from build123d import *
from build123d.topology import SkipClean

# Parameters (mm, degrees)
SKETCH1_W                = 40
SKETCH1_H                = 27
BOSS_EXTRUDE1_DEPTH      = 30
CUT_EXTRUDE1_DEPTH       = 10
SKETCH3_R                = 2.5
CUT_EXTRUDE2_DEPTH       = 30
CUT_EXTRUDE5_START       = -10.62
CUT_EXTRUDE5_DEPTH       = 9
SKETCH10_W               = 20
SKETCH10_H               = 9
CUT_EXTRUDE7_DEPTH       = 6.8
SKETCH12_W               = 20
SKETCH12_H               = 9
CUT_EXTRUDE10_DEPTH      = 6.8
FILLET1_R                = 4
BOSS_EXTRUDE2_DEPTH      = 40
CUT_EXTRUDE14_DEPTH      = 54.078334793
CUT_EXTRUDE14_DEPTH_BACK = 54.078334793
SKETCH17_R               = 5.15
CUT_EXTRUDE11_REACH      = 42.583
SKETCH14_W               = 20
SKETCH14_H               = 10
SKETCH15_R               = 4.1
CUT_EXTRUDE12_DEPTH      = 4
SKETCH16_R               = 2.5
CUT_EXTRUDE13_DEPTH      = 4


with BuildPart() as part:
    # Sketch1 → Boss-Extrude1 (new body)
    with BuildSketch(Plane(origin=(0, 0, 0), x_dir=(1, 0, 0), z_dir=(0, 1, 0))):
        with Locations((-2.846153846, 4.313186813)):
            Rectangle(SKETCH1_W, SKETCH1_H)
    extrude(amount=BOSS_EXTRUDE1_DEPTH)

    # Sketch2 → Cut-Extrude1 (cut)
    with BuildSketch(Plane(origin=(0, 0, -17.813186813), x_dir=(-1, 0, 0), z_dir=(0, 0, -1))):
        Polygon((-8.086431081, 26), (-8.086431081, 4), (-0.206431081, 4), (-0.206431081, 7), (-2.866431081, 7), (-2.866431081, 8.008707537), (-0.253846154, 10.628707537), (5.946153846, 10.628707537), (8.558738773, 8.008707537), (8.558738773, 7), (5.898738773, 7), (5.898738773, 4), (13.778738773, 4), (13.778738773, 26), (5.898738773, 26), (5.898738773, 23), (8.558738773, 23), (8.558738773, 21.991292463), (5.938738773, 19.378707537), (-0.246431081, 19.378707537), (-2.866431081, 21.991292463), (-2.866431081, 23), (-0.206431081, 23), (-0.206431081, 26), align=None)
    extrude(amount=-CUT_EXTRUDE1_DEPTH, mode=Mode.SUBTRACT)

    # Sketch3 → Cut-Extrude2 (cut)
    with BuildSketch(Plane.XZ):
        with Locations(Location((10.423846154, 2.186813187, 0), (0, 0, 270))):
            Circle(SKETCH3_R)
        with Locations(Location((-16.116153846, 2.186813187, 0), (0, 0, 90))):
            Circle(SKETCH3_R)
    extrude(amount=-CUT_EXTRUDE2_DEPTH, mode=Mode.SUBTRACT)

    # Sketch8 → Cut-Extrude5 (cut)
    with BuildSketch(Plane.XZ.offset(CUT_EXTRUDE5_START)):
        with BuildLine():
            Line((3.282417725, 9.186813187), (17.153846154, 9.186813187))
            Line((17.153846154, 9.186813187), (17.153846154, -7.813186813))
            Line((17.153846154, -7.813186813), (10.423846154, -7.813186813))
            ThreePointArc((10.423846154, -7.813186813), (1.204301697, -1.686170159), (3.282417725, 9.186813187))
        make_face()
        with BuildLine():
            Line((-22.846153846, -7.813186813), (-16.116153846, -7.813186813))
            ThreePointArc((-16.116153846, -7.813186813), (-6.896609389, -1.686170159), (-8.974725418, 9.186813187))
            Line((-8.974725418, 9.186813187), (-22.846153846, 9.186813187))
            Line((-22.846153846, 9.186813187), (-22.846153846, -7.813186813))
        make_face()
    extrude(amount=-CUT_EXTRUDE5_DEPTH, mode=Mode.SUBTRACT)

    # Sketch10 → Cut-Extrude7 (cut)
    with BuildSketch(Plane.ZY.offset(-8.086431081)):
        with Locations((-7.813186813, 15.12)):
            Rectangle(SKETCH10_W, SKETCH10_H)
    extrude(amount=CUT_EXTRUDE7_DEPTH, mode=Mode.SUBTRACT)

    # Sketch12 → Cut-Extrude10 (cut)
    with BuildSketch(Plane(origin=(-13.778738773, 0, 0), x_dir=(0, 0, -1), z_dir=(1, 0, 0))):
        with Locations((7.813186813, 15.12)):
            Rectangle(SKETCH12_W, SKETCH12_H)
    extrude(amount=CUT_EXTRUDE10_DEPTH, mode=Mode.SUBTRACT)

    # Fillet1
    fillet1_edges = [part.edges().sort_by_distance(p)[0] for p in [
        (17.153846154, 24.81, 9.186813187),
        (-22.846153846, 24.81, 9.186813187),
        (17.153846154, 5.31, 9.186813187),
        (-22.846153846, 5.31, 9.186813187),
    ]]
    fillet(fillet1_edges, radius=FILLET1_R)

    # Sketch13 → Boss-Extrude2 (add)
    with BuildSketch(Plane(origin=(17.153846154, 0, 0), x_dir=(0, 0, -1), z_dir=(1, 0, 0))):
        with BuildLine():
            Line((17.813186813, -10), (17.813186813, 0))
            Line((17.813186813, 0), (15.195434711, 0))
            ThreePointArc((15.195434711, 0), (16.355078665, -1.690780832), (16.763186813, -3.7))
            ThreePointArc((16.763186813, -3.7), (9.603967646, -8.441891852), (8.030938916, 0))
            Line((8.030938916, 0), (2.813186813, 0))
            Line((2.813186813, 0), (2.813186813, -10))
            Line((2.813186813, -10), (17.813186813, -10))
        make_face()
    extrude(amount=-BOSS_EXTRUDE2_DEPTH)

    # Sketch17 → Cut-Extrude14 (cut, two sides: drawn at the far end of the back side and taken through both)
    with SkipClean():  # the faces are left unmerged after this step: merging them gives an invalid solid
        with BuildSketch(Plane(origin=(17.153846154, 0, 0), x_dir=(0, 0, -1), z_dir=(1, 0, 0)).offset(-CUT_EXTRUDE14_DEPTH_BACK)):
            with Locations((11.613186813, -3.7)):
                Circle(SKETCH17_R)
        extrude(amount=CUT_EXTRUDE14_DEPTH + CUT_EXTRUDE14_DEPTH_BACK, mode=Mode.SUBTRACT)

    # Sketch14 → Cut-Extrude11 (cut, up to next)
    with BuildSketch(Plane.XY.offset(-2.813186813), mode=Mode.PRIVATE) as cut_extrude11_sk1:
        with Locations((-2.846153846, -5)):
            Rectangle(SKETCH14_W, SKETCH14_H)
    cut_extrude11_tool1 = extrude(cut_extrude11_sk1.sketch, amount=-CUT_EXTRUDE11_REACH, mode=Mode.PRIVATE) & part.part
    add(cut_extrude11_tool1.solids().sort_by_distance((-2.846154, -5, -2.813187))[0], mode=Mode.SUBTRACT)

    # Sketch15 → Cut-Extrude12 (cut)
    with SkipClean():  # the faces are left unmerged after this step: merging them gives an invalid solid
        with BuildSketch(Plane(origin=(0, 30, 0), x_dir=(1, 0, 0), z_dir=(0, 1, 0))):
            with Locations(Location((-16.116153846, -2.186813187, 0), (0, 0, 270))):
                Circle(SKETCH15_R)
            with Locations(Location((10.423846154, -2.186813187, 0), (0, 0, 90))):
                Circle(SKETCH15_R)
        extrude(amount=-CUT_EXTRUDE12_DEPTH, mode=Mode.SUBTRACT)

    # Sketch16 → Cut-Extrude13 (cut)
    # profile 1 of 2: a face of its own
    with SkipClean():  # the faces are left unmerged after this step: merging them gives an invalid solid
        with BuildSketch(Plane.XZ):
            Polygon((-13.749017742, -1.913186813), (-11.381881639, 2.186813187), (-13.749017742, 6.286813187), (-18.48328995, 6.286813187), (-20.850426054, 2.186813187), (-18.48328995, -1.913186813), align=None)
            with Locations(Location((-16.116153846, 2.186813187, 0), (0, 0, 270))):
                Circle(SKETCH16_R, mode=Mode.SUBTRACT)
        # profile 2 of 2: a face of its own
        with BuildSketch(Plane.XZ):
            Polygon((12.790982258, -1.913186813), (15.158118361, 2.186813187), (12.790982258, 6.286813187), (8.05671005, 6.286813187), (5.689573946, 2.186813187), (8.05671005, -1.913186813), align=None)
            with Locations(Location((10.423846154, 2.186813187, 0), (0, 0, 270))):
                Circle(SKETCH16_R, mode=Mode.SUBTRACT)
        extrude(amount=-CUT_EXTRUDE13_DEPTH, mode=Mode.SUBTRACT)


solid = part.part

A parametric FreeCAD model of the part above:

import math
import FreeCAD as App
import Part
import Sketcher
from FreeCAD import Vector
Q = App.Units.Quantity


def edges_at(feature, points):
    """Names of the edges that pass closest to the given points."""
    edges = feature.Shape.Edges
    near = lambda p: min(range(len(edges)), key=lambda i: edges[i].distToShape(Part.Vertex(*p))[0])
    return sorted({f"Edge{near(p) + 1}" for p in points})

doc = App.newDocument("Part")
params = doc.addObject("Spreadsheet::Sheet", "Params")
for row, (alias, value) in enumerate([
    ("sketch1_width", "40 mm"),
    ("sketch1_height", "27 mm"),
    ("pad1_length", "30 mm"),
    ("sketch2_height", "22 mm"),
    ("sketch2_height2", "3 mm"),
    ("sketch2_width", "6.2 mm"),
    ("sketch2_length", "3.7 mm"),
    ("sketch2_width2", "7.88 mm"),
    ("pocket1_length", "10 mm"),
    ("sketch3_diameter", "5 mm"),
    ("pocket2_length", "30 mm"),
    ("sketch4_radius", "10 mm"),
    ("sketch4_height", "17 mm"),
    ("sketch4_width", "6.73 mm"),
    ("pocket3_length", "9 mm"),
    ("sketch5_width", "9 mm"),
    ("sketch5_height", "20 mm"),
    ("pocket4_length", "6.8 mm"),
    ("sketch6_width", "9 mm"),
    ("sketch6_height", "20 mm"),
    ("pocket5_length", "6.8 mm"),
    ("fillet_radius", "4 mm"),
    ("sketch7_width", "10 mm"),
    ("sketch7_height", "15 mm"),
    ("sketch7_radius", "5.15 mm"),
    ("pad2_length", "40 mm"),
    ("sketch8_diameter", "10.3 mm"),
    ("sketch9_width", "20 mm"),
    ("sketch9_height", "10 mm"),
    ("pocket7_length", "15 mm"),
    ("sketch10_diameter", "8.2 mm"),
    ("pocket8_length", "4 mm"),
    ("sketch11_diameter", "5 mm"),
    ("pocket9_length", "4 mm"),
], start=1):
    params.set(f"A{row}", alias)
    params.set(f"B{row}", "=" + value)
    params.setAlias(f"B{row}", alias)

body = doc.addObject("PartDesign::Body", "Body")

# Sketch on XZ plane
sketch1 = doc.addObject("Sketcher::SketchObject", "Sketch")
body.addObject(sketch1)
sketch1.AttachmentSupport = (doc.XZ_Plane, [""])
sketch1.MapMode = "FlatFace"
sketch1.addGeometry([
    Part.LineSegment(Vector(-22.846154, -17.813187, 0), Vector(-22.846154, 9.186813, 0)),
    Part.LineSegment(Vector(-22.846154, 9.186813, 0), Vector(17.153846, 9.186813, 0)),
    Part.LineSegment(Vector(17.153846, 9.186813, 0), Vector(17.153846, -17.813187, 0)),
    Part.LineSegment(Vector(17.153846, -17.813187, 0), Vector(-22.846154, -17.813187, 0)),
], False)
sketch1.addConstraint([
    Sketcher.Constraint("Coincident", 0, 2, 1, 1),
    Sketcher.Constraint("Coincident", 1, 2, 2, 1),
    Sketcher.Constraint("Coincident", 2, 2, 3, 1),
    Sketcher.Constraint("Coincident", 3, 2, 0, 1),
    Sketcher.Constraint("Vertical", 0),
    Sketcher.Constraint("Horizontal", 1),
    Sketcher.Constraint("Vertical", 2),
    Sketcher.Constraint("Horizontal", 3),
    Sketcher.Constraint("DistanceX", 1, 1, 1, 2, 40.0),
    Sketcher.Constraint("DistanceY", 0, 1, 0, 2, 27.0),
    Sketcher.Constraint("DistanceX", 0, 2, -1, 1, 22.846154),
    Sketcher.Constraint("DistanceY", -1, 1, 0, 2, 9.186813),
])
sketch1.setExpression("Constraints[8]", "Params.sketch1_width")
sketch1.setExpression("Constraints[9]", "Params.sketch1_height")
pad1 = doc.addObject("PartDesign::Pad", "Pad")
body.addObject(pad1)
pad1.Profile = sketch1
pad1.setExpression("Length", "Params.pad1_length")
pad1.Reversed = True

# Sketch on XY plane
sketch2 = doc.addObject("Sketcher::SketchObject", "Sketch001")
body.addObject(sketch2)
sketch2.AttachmentSupport = (doc.XY_Plane, [""])
sketch2.MapMode = "FlatFace"
sketch2.AttachmentOffset = App.Placement(Vector(0, 0, -17.813187), App.Rotation())
sketch2.addGeometry([
    Part.LineSegment(Vector(8.086431, 26, 0), Vector(8.086431, 4, 0)),  # 0
    Part.LineSegment(Vector(8.086431, 4, 0), Vector(0.206431, 4, 0)),  # 1
    Part.LineSegment(Vector(0.206431, 4, 0), Vector(0.206431, 7, 0)),  # 2
    Part.LineSegment(Vector(0.206431, 7, 0), Vector(2.866431, 7, 0)),  # 3
    Part.LineSegment(Vector(2.866431, 7, 0), Vector(2.866431, 8.008708, 0)),  # 4
    Part.LineSegment(Vector(2.866431, 8.008708, 0), Vector(0.253846, 10.628708, 0)),  # 5
    Part.LineSegment(Vector(0.253846, 10.628708, 0), Vector(-5.946154, 10.628708, 0)),  # 6
    Part.LineSegment(Vector(-5.946154, 10.628708, 0), Vector(-8.558739, 8.008708, 0)),  # 7
    Part.LineSegment(Vector(-8.558739, 8.008708, 0), Vector(-8.558739, 7, 0)),  # 8
    Part.LineSegment(Vector(-8.558739, 7, 0), Vector(-5.898739, 7, 0)),  # 9
    Part.LineSegment(Vector(-5.898739, 7, 0), Vector(-5.898739, 4, 0)),  # 10
    Part.LineSegment(Vector(-5.898739, 4, 0), Vector(-13.778739, 4, 0)),  # 11
    Part.LineSegment(Vector(-13.778739, 4, 0), Vector(-13.778739, 26, 0)),  # 12
    Part.LineSegment(Vector(-13.778739, 26, 0), Vector(-5.898739, 26, 0)),  # 13
    Part.LineSegment(Vector(-5.898739, 26, 0), Vector(-5.898739, 23, 0)),  # 14
    Part.LineSegment(Vector(-5.898739, 23, 0), Vector(-8.558739, 23, 0)),  # 15
    Part.LineSegment(Vector(-8.558739, 23, 0), Vector(-8.558739, 21.991292, 0)),  # 16
    Part.LineSegment(Vector(-8.558739, 21.991292, 0), Vector(-5.938739, 19.378708, 0)),  # 17
    Part.LineSegment(Vector(-5.938739, 19.378708, 0), Vector(0.246431, 19.378708, 0)),  # 18
    Part.LineSegment(Vector(0.246431, 19.378708, 0), Vector(2.866431, 21.991292, 0)),  # 19
    Part.LineSegment(Vector(2.866431, 21.991292, 0), Vector(2.866431, 23, 0)),  # 20
    Part.LineSegment(Vector(2.866431, 23, 0), Vector(0.206431, 23, 0)),  # 21
    Part.LineSegment(Vector(0.206431, 23, 0), Vector(0.206431, 26, 0)),  # 22
    Part.LineSegment(Vector(0.206431, 26, 0), Vector(8.086431, 26, 0)),  # 23
], False)
sketch2.addConstraint([
    Sketcher.Constraint("Coincident", 0, 2, 1, 1),
    Sketcher.Constraint("Coincident", 1, 2, 2, 1),
    Sketcher.Constraint("Coincident", 2, 2, 3, 1),
    Sketcher.Constraint("Coincident", 3, 2, 4, 1),
    Sketcher.Constraint("Coincident", 4, 2, 5, 1),
    Sketcher.Constraint("Coincident", 5, 2, 6, 1),
    Sketcher.Constraint("Coincident", 6, 2, 7, 1),
    Sketcher.Constraint("Coincident", 7, 2, 8, 1),
    Sketcher.Constraint("Coincident", 8, 2, 9, 1),
    Sketcher.Constraint("Coincident", 9, 2, 10, 1),
    Sketcher.Constraint("Coincident", 10, 2, 11, 1),
    Sketcher.Constraint("Coincident", 11, 2, 12, 1),
    Sketcher.Constraint("Coincident", 12, 2, 13, 1),
    Sketcher.Constraint("Coincident", 13, 2, 14, 1),
    Sketcher.Constraint("Coincident", 14, 2, 15, 1),
    Sketcher.Constraint("Coincident", 15, 2, 16, 1),
    Sketcher.Constraint("Coincident", 16, 2, 17, 1),
    Sketcher.Constraint("Coincident", 17, 2, 18, 1),
    Sketcher.Constraint("Coincident", 18, 2, 19, 1),
    Sketcher.Constraint("Coincident", 19, 2, 20, 1),
    Sketcher.Constraint("Coincident", 20, 2, 21, 1),
    Sketcher.Constraint("Coincident", 21, 2, 22, 1),
    Sketcher.Constraint("Coincident", 22, 2, 23, 1),
    Sketcher.Constraint("Coincident", 23, 2, 0, 1),
    Sketcher.Constraint("Vertical", 0),
    Sketcher.Constraint("Horizontal", 1),
    Sketcher.Constraint("Vertical", 2),
    Sketcher.Constraint("Horizontal", 3),
    Sketcher.Constraint("Vertical", 4),
    Sketcher.Constraint("Horizontal", 6),
    Sketcher.Constraint("Vertical", 8),
    Sketcher.Constraint("Horizontal", 9),
    Sketcher.Constraint("Vertical", 10),
    Sketcher.Constraint("Horizontal", 11),
    Sketcher.Constraint("Vertical", 12),
    Sketcher.Constraint("Horizontal", 13),
    Sketcher.Constraint("Vertical", 14),
    Sketcher.Constraint("Horizontal", 15),
    Sketcher.Constraint("Vertical", 16),
    Sketcher.Constraint("Horizontal", 18),
    Sketcher.Constraint("Vertical", 20),
    Sketcher.Constraint("Horizontal", 21),
    Sketcher.Constraint("Vertical", 22),
    Sketcher.Constraint("Horizontal", 23),
    Sketcher.Constraint("Perpendicular", 7, 17),
    Sketcher.Constraint("Perpendicular", 5, 19),
    Sketcher.Constraint("Horizontal", 4, 2, 7, 2),
    Sketcher.Constraint("Horizontal", 3, 2, 8, 2),
    Sketcher.Constraint("Horizontal", 1, 2, 10, 2),
    Sketcher.Constraint("Horizontal", 16, 2, 19, 2),
    Sketcher.Constraint("Horizontal", 15, 2, 20, 2),
    Sketcher.Constraint("Horizontal", 13, 2, 22, 2),
    Sketcher.Constraint("Vertical", 10, 2, 13, 2),
    Sketcher.Constraint("Vertical", 8, 2, 15, 2),
    Sketcher.Constraint("Vertical", 4, 2, 19, 2),
    Sketcher.Constraint("Vertical", 2, 2, 21, 2),
    Sketcher.Constraint("Equal", 3, 9),
    Sketcher.Constraint("Equal", 1, 11),
    Sketcher.Constraint("Equal", 10, 14),
    Sketcher.Constraint("Equal", 8, 16),
    Sketcher.Constraint("Equal", 5, 7),
    Sketcher.Constraint("Equal", 7, 17),
    Sketcher.Constraint("DistanceY", 0, 2, 0, 1, 22.0),
    Sketcher.Constraint("DistanceY", 2, 1, 2, 2, 3.0),
    Sketcher.Constraint("DistanceX", 6, 2, 6, 1, 6.2),
    Sketcher.Constraint("DistanceY", -1, 1, 0, 2, 4.0),
    Sketcher.Constraint("Distance", 5, 3.7),
    Sketcher.Constraint("DistanceX", 1, 2, 1, 1, 7.88),
    Sketcher.Constraint("DistanceX", 3, 1, 3, 2, 2.66),
    Sketcher.Constraint("DistanceY", 4, 2, 5, 2, 2.62),
    Sketcher.Constraint("DistanceY", 6, 2, 17, 2, 8.75),
    Sketcher.Constraint("DistanceX", -1, 1, 0, 2, 8.086431),
])
sketch2.setExpression("Constraints[62]", "Params.sketch2_height")
sketch2.setExpression("Constraints[63]", "Params.sketch2_height2")
sketch2.setExpression("Constraints[64]", "Params.sketch2_width")
sketch2.setExpression("Constraints[66]", "Params.sketch2_length")
sketch2.setExpression("Constraints[67]", "Params.sketch2_width2")
pocket1 = doc.addObject("PartDesign::Pocket", "Pocket")
body.addObject(pocket1)
pocket1.Profile = sketch2
pocket1.setExpression("Length", "Params.pocket1_length")
pocket1.Reversed = True

# Sketch on XZ plane
sketch3 = doc.addObject("Sketcher::SketchObject", "Sketch002")
body.addObject(sketch3)
sketch3.AttachmentSupport = (doc.XZ_Plane, [""])
sketch3.MapMode = "FlatFace"
sketch3.addGeometry([
    Part.Circle(Vector(10.423846, 2.186813, 0), Vector(0, 0, 1), 2.5),
    Part.Circle(Vector(-16.116154, 2.186813, 0), Vector(0, 0, 1), 2.5),
], False)
sketch3.addConstraint([
    Sketcher.Constraint("Equal", 0, 1),
    Sketcher.Constraint("Horizontal", 0, 3, 1, 3),
    Sketcher.Constraint("Diameter", 0, 5.0),
    Sketcher.Constraint("DistanceX", 1, 3, 0, 3, 26.54),
    Sketcher.Constraint("DistanceX", -1, 1, 0, 3, 10.423846),
    Sketcher.Constraint("DistanceY", -1, 1, 0, 3, 2.186813),
])
sketch3.setExpression("Constraints[2]", "Params.sketch3_diameter")
pocket2 = doc.addObject("PartDesign::Pocket", "Pocket001")
body.addObject(pocket2)
pocket2.Profile = sketch3
pocket2.setExpression("Length", "Params.pocket2_length")

# Sketch on XZ plane
sketch4 = doc.addObject("Sketcher::SketchObject", "Sketch003")
body.addObject(sketch4)
sketch4.AttachmentSupport = (doc.XZ_Plane, [""])
sketch4.MapMode = "FlatFace"
sketch4.AttachmentOffset = App.Placement(Vector(0, 0, -10.62), App.Rotation())
sketch4.addGeometry([
    Part.LineSegment(Vector(17.153846, 9.186813, 0), Vector(3.282418, 9.186813, 0)),  # 0
    Part.ArcOfCircle(Part.Circle(Vector(10.423846, 2.186813, 0), Vector(0, 0, 1), 10), math.radians(135.572996), math.radians(270)),  # 1
    Part.LineSegment(Vector(10.423846, -7.813187, 0), Vector(17.153846, -7.813187, 0)),  # 2
    Part.LineSegment(Vector(17.153846, -7.813187, 0), Vector(17.153846, 9.186813, 0)),  # 3
    Part.LineSegment(Vector(-22.846154, -7.813187, 0), Vector(-16.116154, -7.813187, 0)),  # 4
    Part.ArcOfCircle(Part.Circle(Vector(-16.116154, 2.186813, 0), Vector(0, 0, 1), 10), math.radians(-90), math.radians(44.427004)),  # 5
    Part.LineSegment(Vector(-8.974725, 9.186813, 0), Vector(-22.846154, 9.186813, 0)),  # 6
    Part.LineSegment(Vector(-22.846154, 9.186813, 0), Vector(-22.846154, -7.813187, 0)),  # 7
], False)
sketch4.addConstraint([
    Sketcher.Constraint("Coincident", 0, 2, 1, 1),
    Sketcher.Constraint("Tangent", 1, 2, 2, 1),
    Sketcher.Constraint("Coincident", 2, 2, 3, 1),
    Sketcher.Constraint("Coincident", 3, 2, 0, 1),
    Sketcher.Constraint("Tangent", 4, 2, 5, 1),
    Sketcher.Constraint("Coincident", 5, 2, 6, 1),
    Sketcher.Constraint("Coincident", 6, 2, 7, 1),
    Sketcher.Constraint("Coincident", 7, 2, 4, 1),
    Sketcher.Constraint("Horizontal", 0),
    Sketcher.Constraint("Horizontal", 2),
    Sketcher.Constraint("Vertical", 3),
    Sketcher.Constraint("Horizontal", 4),
    Sketcher.Constraint("Horizontal", 6),
    Sketcher.Constraint("Vertical", 7),
    Sketcher.Constraint("Equal", 1, 5),
    Sketcher.Constraint("Horizontal", 1, 3, 5, 3),
    Sketcher.Constraint("Horizontal", 3, 2, 5, 2),
    Sketcher.Constraint("Equal", 2, 4),
    Sketcher.Constraint("Radius", 1, 10.0),
    Sketcher.Constraint("DistanceY", 3, 1, 3, 2, 17.0),
    Sketcher.Constraint("DistanceX", 2, 1, 2, 2, 6.73),
    Sketcher.Constraint("DistanceX", 5, 3, 1, 3, 26.54),
    Sketcher.Constraint("DistanceX", -1, 1, 1, 3, 10.423846),
    Sketcher.Constraint("DistanceY", -1, 1, 1, 3, 2.186813),
])
sketch4.setExpression("Constraints[18]", "Params.sketch4_radius")
sketch4.setExpression("Constraints[19]", "Params.sketch4_height")
sketch4.setExpression("Constraints[20]", "Params.sketch4_width")
pocket3 = doc.addObject("PartDesign::Pocket", "Pocket002")
body.addObject(pocket3)
pocket3.Profile = sketch4
pocket3.setExpression("Length", "Params.pocket3_length")

# Sketch on YZ plane
sketch5 = doc.addObject("Sketcher::SketchObject", "Sketch004")
body.addObject(sketch5)
sketch5.AttachmentSupport = (doc.YZ_Plane, [""])
sketch5.MapMode = "FlatFace"
sketch5.AttachmentOffset = App.Placement(Vector(0, 0, 8.086431), App.Rotation())
sketch5.addGeometry([
    Part.LineSegment(Vector(19.62, -17.813187, 0), Vector(10.62, -17.813187, 0)),
    Part.LineSegment(Vector(10.62, -17.813187, 0), Vector(10.62, 2.186813, 0)),
    Part.LineSegment(Vector(10.62, 2.186813, 0), Vector(19.62, 2.186813, 0)),
    Part.LineSegment(Vector(19.62, 2.186813, 0), Vector(19.62, -17.813187, 0)),
], False)
sketch5.addConstraint([
    Sketcher.Constraint("Coincident", 0, 2, 1, 1),
    Sketcher.Constraint("Coincident", 1, 2, 2, 1),
    Sketcher.Constraint("Coincident", 2, 2, 3, 1),
    Sketcher.Constraint("Coincident", 3, 2, 0, 1),
    Sketcher.Constraint("Horizontal", 0),
    Sketcher.Constraint("Vertical", 1),
    Sketcher.Constraint("Horizontal", 2),
    Sketcher.Constraint("Vertical", 3),
    Sketcher.Constraint("DistanceX", 0, 2, 0, 1, 9.0),
    Sketcher.Constraint("DistanceY", 1, 1, 1, 2, 20.0),
    Sketcher.Constraint("DistanceX", -1, 1, 0, 2, 10.62),
    Sketcher.Constraint("DistanceY", 0, 2, -1, 1, 17.813187),
])
sketch5.setExpression("Constraints[8]", "Params.sketch5_width")
sketch5.setExpression("Constraints[9]", "Params.sketch5_height")
pocket4 = doc.addObject("PartDesign::Pocket", "Pocket003")
body.addObject(pocket4)
pocket4.Profile = sketch5
pocket4.setExpression("Length", "Params.pocket4_length")

# Sketch on YZ plane
sketch6 = doc.addObject("Sketcher::SketchObject", "Sketch005")
body.addObject(sketch6)
sketch6.AttachmentSupport = (doc.YZ_Plane, [""])
sketch6.MapMode = "FlatFace"
sketch6.AttachmentOffset = App.Placement(Vector(0, 0, -13.778739), App.Rotation())
sketch6.addGeometry([
    Part.LineSegment(Vector(19.62, 2.186813, 0), Vector(10.62, 2.186813, 0)),
    Part.LineSegment(Vector(10.62, 2.186813, 0), Vector(10.62, -17.813187, 0)),
    Part.LineSegment(Vector(10.62, -17.813187, 0), Vector(19.62, -17.813187, 0)),
    Part.LineSegment(Vector(19.62, -17.813187, 0), Vector(19.62, 2.186813, 0)),
], False)
sketch6.addConstraint([
    Sketcher.Constraint("Coincident", 0, 2, 1, 1),
    Sketcher.Constraint("Coincident", 1, 2, 2, 1),
    Sketcher.Constraint("Coincident", 2, 2, 3, 1),
    Sketcher.Constraint("Coincident", 3, 2, 0, 1),
    Sketcher.Constraint("Horizontal", 0),
    Sketcher.Constraint("Vertical", 1),
    Sketcher.Constraint("Horizontal", 2),
    Sketcher.Constraint("Vertical", 3),
    Sketcher.Constraint("DistanceX", 0, 2, 0, 1, 9.0),
    Sketcher.Constraint("DistanceY", 1, 2, 1, 1, 20.0),
    Sketcher.Constraint("DistanceX", -1, 1, 0, 2, 10.62),
    Sketcher.Constraint("DistanceY", -1, 1, 0, 2, 2.186813),
])
sketch6.setExpression("Constraints[8]", "Params.sketch6_width")
sketch6.setExpression("Constraints[9]", "Params.sketch6_height")
pocket5 = doc.addObject("PartDesign::Pocket", "Pocket004")
body.addObject(pocket5)
pocket5.Profile = sketch6
pocket5.setExpression("Length", "Params.pocket5_length")
pocket5.Reversed = True
doc.recompute()

fillet = doc.addObject("PartDesign::Fillet", "Fillet")
body.addObject(fillet)
fillet.Base = (pocket5, edges_at(pocket5, [
    (17.154, 24.81, 9.187),
    (-22.846, 24.81, 9.187),
    (17.154, 5.31, 9.187),
    (-22.846, 5.31, 9.187),
]))
fillet.setExpression("Radius", "Params.fillet_radius")

# Sketch on YZ plane
sketch7 = doc.addObject("Sketcher::SketchObject", "Sketch006")
body.addObject(sketch7)
sketch7.AttachmentSupport = (doc.YZ_Plane, [""])
sketch7.MapMode = "FlatFace"
sketch7.AttachmentOffset = App.Placement(Vector(0, 0, 17.153846), App.Rotation())
sketch7.addGeometry([
    Part.LineSegment(Vector(-10, -17.813187, 0), Vector(0, -17.813187, 0)),  # 0
    Part.LineSegment(Vector(0, -17.813187, 0), Vector(0, -15.195435, 0)),  # 1
    Part.ArcOfCircle(Part.Circle(Vector(-3.7, -11.613187, 0), Vector(0, 0, 1), 5.15), math.radians(-90), math.radians(-44.073623)),  # 2
    Part.ArcOfCircle(Part.Circle(Vector(-3.7, -11.613187, 0), Vector(0, 0, 1), 5.15), math.radians(44.073622), math.radians(270)),  # 3
    Part.LineSegment(Vector(0, -8.030939, 0), Vector(0, -2.813187, 0)),  # 4
    Part.LineSegment(Vector(0, -2.813187, 0), Vector(-10, -2.813187, 0)),  # 5
    Part.LineSegment(Vector(-10, -2.813187, 0), Vector(-10, -17.813187, 0)),  # 6
], False)
sketch7.addConstraint([
    Sketcher.Constraint("Coincident", 0, 2, 1, 1),
    Sketcher.Constraint("Coincident", 1, 2, 2, 2),
    Sketcher.Constraint("Tangent", 2, 1, 3, 2),
    Sketcher.Constraint("Coincident", 3, 1, 4, 1),
    Sketcher.Constraint("Coincident", 4, 2, 5, 1),
    Sketcher.Constraint("Coincident", 5, 2, 6, 1),
    Sketcher.Constraint("Coincident", 6, 2, 0, 1),
    Sketcher.Constraint("Horizontal", 0),
    Sketcher.Constraint("Vertical", 1),
    Sketcher.Constraint("Vertical", 4),
    Sketcher.Constraint("Horizontal", 5),
    Sketcher.Constraint("Vertical", 6),
    Sketcher.Constraint("Equal", 2, 3),
    Sketcher.Constraint("PointOnObject", 0, 2, -2),
    Sketcher.Constraint("PointOnObject", 3, 1, -2),
    Sketcher.Constraint("Vertical", 3, 3, 2, 1),
    Sketcher.Constraint("DistanceX", 0, 1, 0, 2, 10.0),
    Sketcher.Constraint("DistanceY", 6, 2, 6, 1, 15.0),
    Sketcher.Constraint("Radius", 2, 5.15),
    Sketcher.Constraint("DistanceX", 2, 3, -1, 1, 3.7),
    Sketcher.Constraint("DistanceY", 0, 2, 2, 3, 6.2),
    Sketcher.Constraint("DistanceY", 3, 1, -1, 1, 8.030939),
])
sketch7.setExpression("Constraints[16]", "Params.sketch7_width")
sketch7.setExpression("Constraints[17]", "Params.sketch7_height")
sketch7.setExpression("Constraints[18]", "Params.sketch7_radius")
pad2 = doc.addObject("PartDesign::Pad", "Pad001")
body.addObject(pad2)
pad2.Profile = sketch7
pad2.setExpression("Length", "Params.pad2_length")
pad2.Reversed = True

# Sketch on YZ plane
sketch8 = doc.addObject("Sketcher::SketchObject", "Sketch007")
body.addObject(sketch8)
sketch8.AttachmentSupport = (doc.YZ_Plane, [""])
sketch8.MapMode = "FlatFace"
sketch8.AttachmentOffset = App.Placement(Vector(0, 0, 17.153846), App.Rotation())
sketch8.addGeometry(Part.Circle(Vector(-3.7, -11.613187, 0), Vector(0, 0, 1), 5.15), False)
sketch8.addConstraint([
    Sketcher.Constraint("Diameter", 0, 10.3),
    Sketcher.Constraint("DistanceX", 0, 3, -1, 1, 3.7),
    Sketcher.Constraint("DistanceY", 0, 3, -1, 1, 11.613187),
])
sketch8.setExpression("Constraints[0]", "Params.sketch8_diameter")
pocket6 = doc.addObject("PartDesign::Pocket", "Pocket005")
body.addObject(pocket6)
pocket6.Profile = sketch8
pocket6.Type = "ThroughAll"
pocket6.Midplane = True

# Sketch on XY plane
sketch9 = doc.addObject("Sketcher::SketchObject", "Sketch008")
body.addObject(sketch9)
sketch9.AttachmentSupport = (doc.XY_Plane, [""])
sketch9.MapMode = "FlatFace"
sketch9.AttachmentOffset = App.Placement(Vector(0, 0, -2.813187), App.Rotation())
sketch9.addGeometry([
    Part.LineSegment(Vector(-12.846154, 0, 0), Vector(-12.846154, -10, 0)),
    Part.LineSegment(Vector(-12.846154, -10, 0), Vector(7.153846, -10, 0)),
    Part.LineSegment(Vector(7.153846, -10, 0), Vector(7.153846, 0, 0)),
    Part.LineSegment(Vector(7.153846, 0, 0), Vector(-12.846154, 0, 0)),
], False)
sketch9.addConstraint([
    Sketcher.Constraint("Coincident", 0, 2, 1, 1),
    Sketcher.Constraint("Coincident", 1, 2, 2, 1),
    Sketcher.Constraint("Coincident", 2, 2, 3, 1),
    Sketcher.Constraint("Coincident", 3, 2, 0, 1),
    Sketcher.Constraint("Vertical", 0),
    Sketcher.Constraint("Horizontal", 1),
    Sketcher.Constraint("Vertical", 2),
    Sketcher.Constraint("Horizontal", 3),
    Sketcher.Constraint("PointOnObject", 2, 2, -1),
    Sketcher.Constraint("DistanceX", 1, 1, 1, 2, 20.0),
    Sketcher.Constraint("DistanceY", 0, 2, 0, 1, 10.0),
    Sketcher.Constraint("DistanceX", 0, 2, -1, 1, 12.846154),
])
sketch9.setExpression("Constraints[9]", "Params.sketch9_width")
sketch9.setExpression("Constraints[10]", "Params.sketch9_height")
pocket7 = doc.addObject("PartDesign::Pocket", "Pocket006")
body.addObject(pocket7)
pocket7.Profile = sketch9
pocket7.setExpression("Length", "Params.pocket7_length")

# Sketch on XZ plane
sketch10 = doc.addObject("Sketcher::SketchObject", "Sketch009")
body.addObject(sketch10)
sketch10.AttachmentSupport = (doc.XZ_Plane, [""])
sketch10.MapMode = "FlatFace"
sketch10.AttachmentOffset = App.Placement(Vector(0, 0, -30), App.Rotation())
sketch10.addGeometry([
    Part.Circle(Vector(-16.116154, 2.186813, 0), Vector(0, 0, 1), 4.1),
    Part.Circle(Vector(10.423846, 2.186813, 0), Vector(0, 0, 1), 4.1),
], False)
sketch10.addConstraint([
    Sketcher.Constraint("Equal", 0, 1),
    Sketcher.Constraint("Horizontal", 0, 3, 1, 3),
    Sketcher.Constraint("Diameter", 0, 8.2),
    Sketcher.Constraint("DistanceX", 0, 3, 1, 3, 26.54),
    Sketcher.Constraint("DistanceX", 0, 3, -1, 1, 16.116154),
    Sketcher.Constraint("DistanceY", -1, 1, 0, 3, 2.186813),
])
sketch10.setExpression("Constraints[2]", "Params.sketch10_diameter")
pocket8 = doc.addObject("PartDesign::Pocket", "Pocket007")
body.addObject(pocket8)
pocket8.Profile = sketch10
pocket8.setExpression("Length", "Params.pocket8_length")
pocket8.Reversed = True

# Sketch on XZ plane
sketch11 = doc.addObject("Sketcher::SketchObject", "Sketch010")
body.addObject(sketch11)
sketch11.AttachmentSupport = (doc.XZ_Plane, [""])
sketch11.MapMode = "FlatFace"
sketch11.addGeometry([
    Part.LineSegment(Vector(-13.749018, -1.913187, 0), Vector(-11.381882, 2.186813, 0)),  # 0
    Part.LineSegment(Vector(-11.381882, 2.186813, 0), Vector(-13.749018, 6.286813, 0)),  # 1
    Part.LineSegment(Vector(-13.749018, 6.286813, 0), Vector(-18.48329, 6.286813, 0)),  # 2
    Part.LineSegment(Vector(-18.48329, 6.286813, 0), Vector(-20.850426, 2.186813, 0)),  # 3
    Part.LineSegment(Vector(-20.850426, 2.186813, 0), Vector(-18.48329, -1.913187, 0)),  # 4
    Part.LineSegment(Vector(-18.48329, -1.913187, 0), Vector(-13.749018, -1.913187, 0)),  # 5
    Part.Circle(Vector(-16.116154, 2.186813, 0), Vector(0, 0, 1), 2.5),  # 6
    Part.LineSegment(Vector(12.790982, -1.913187, 0), Vector(15.158118, 2.186813, 0)),  # 7
    Part.LineSegment(Vector(15.158118, 2.186813, 0), Vector(12.790982, 6.286813, 0)),  # 8
    Part.LineSegment(Vector(12.790982, 6.286813, 0), Vector(8.05671, 6.286813, 0)),  # 9
    Part.LineSegment(Vector(8.05671, 6.286813, 0), Vector(5.689574, 2.186813, 0)),  # 10
    Part.LineSegment(Vector(5.689574, 2.186813, 0), Vector(8.05671, -1.913187, 0)),  # 11
    Part.LineSegment(Vector(8.05671, -1.913187, 0), Vector(12.790982, -1.913187, 0)),  # 12
    Part.Circle(Vector(10.423846, 2.186813, 0), Vector(0, 0, 1), 2.5),  # 13
], False)
sketch11.addConstraint([
    Sketcher.Constraint("Coincident", 0, 2, 1, 1),
    Sketcher.Constraint("Coincident", 1, 2, 2, 1),
    Sketcher.Constraint("Coincident", 2, 2, 3, 1),
    Sketcher.Constraint("Coincident", 3, 2, 4, 1),
    Sketcher.Constraint("Coincident", 4, 2, 5, 1),
    Sketcher.Constraint("Coincident", 5, 2, 0, 1),
    Sketcher.Constraint("Coincident", 7, 2, 8, 1),
    Sketcher.Constraint("Coincident", 8, 2, 9, 1),
    Sketcher.Constraint("Coincident", 9, 2, 10, 1),
    Sketcher.Constraint("Coincident", 10, 2, 11, 1),
    Sketcher.Constraint("Coincident", 11, 2, 12, 1),
    Sketcher.Constraint("Coincident", 12, 2, 7, 1),
    Sketcher.Constraint("Horizontal", 2),
    Sketcher.Constraint("Horizontal", 5),
    Sketcher.Constraint("Horizontal", 9),
    Sketcher.Constraint("Horizontal", 12),
    Sketcher.Constraint("Equal", 6, 13),
    Sketcher.Constraint("Parallel", 0, 3),
    Sketcher.Constraint("Parallel", 1, 4),
    Sketcher.Constraint("Parallel", 3, 7),
    Sketcher.Constraint("Parallel", 4, 8),
    Sketcher.Constraint("Parallel", 7, 10),
    Sketcher.Constraint("Parallel", 8, 11),
    Sketcher.Constraint("Horizontal", 6, 3, 13, 3),
    Sketcher.Constraint("Horizontal", 13, 3, 0, 2),
    Sketcher.Constraint("Horizontal", 0, 2, 3, 2),
    Sketcher.Constraint("Horizontal", 3, 2, 7, 2),
    Sketcher.Constraint("Horizontal", 2, 2, 8, 2),
    Sketcher.Constraint("Horizontal", 7, 2, 10, 2),
    Sketcher.Constraint("Horizontal", 5, 2, 11, 2),
    Sketcher.Constraint("Vertical", 2, 2, 4, 2),
    Sketcher.Constraint("Vertical", 1, 2, 5, 2),
    Sketcher.Constraint("Equal", 5, 9),
    Sketcher.Constraint("Diameter", 6, 5.0),
    Sketcher.Constraint("Angle", 0, Q("60 deg")),
    Sketcher.Constraint("DistanceY", 0, 2, 1, 2, 4.1),
    Sketcher.Constraint("DistanceX", 6, 3, 13, 3, 26.54),
    Sketcher.Constraint("DistanceX", 0, 2, 7, 2, 26.54),
    Sketcher.Constraint("DistanceX", 2, 2, 2, 1, 4.734272),
    Sketcher.Constraint("DistanceX", 0, 2, -1, 1, 11.381882),
    Sketcher.Constraint("DistanceX", 6, 3, -1, 1, 16.116154),
    Sketcher.Constraint("DistanceY", -1, 1, 6, 3, 2.186813),
])
sketch11.setExpression("Constraints[33]", "Params.sketch11_diameter")
pocket9 = doc.addObject("PartDesign::Pocket", "Pocket008")
body.addObject(pocket9)
pocket9.Profile = sketch11
pocket9.setExpression("Length", "Params.pocket9_length")

doc.recompute()
